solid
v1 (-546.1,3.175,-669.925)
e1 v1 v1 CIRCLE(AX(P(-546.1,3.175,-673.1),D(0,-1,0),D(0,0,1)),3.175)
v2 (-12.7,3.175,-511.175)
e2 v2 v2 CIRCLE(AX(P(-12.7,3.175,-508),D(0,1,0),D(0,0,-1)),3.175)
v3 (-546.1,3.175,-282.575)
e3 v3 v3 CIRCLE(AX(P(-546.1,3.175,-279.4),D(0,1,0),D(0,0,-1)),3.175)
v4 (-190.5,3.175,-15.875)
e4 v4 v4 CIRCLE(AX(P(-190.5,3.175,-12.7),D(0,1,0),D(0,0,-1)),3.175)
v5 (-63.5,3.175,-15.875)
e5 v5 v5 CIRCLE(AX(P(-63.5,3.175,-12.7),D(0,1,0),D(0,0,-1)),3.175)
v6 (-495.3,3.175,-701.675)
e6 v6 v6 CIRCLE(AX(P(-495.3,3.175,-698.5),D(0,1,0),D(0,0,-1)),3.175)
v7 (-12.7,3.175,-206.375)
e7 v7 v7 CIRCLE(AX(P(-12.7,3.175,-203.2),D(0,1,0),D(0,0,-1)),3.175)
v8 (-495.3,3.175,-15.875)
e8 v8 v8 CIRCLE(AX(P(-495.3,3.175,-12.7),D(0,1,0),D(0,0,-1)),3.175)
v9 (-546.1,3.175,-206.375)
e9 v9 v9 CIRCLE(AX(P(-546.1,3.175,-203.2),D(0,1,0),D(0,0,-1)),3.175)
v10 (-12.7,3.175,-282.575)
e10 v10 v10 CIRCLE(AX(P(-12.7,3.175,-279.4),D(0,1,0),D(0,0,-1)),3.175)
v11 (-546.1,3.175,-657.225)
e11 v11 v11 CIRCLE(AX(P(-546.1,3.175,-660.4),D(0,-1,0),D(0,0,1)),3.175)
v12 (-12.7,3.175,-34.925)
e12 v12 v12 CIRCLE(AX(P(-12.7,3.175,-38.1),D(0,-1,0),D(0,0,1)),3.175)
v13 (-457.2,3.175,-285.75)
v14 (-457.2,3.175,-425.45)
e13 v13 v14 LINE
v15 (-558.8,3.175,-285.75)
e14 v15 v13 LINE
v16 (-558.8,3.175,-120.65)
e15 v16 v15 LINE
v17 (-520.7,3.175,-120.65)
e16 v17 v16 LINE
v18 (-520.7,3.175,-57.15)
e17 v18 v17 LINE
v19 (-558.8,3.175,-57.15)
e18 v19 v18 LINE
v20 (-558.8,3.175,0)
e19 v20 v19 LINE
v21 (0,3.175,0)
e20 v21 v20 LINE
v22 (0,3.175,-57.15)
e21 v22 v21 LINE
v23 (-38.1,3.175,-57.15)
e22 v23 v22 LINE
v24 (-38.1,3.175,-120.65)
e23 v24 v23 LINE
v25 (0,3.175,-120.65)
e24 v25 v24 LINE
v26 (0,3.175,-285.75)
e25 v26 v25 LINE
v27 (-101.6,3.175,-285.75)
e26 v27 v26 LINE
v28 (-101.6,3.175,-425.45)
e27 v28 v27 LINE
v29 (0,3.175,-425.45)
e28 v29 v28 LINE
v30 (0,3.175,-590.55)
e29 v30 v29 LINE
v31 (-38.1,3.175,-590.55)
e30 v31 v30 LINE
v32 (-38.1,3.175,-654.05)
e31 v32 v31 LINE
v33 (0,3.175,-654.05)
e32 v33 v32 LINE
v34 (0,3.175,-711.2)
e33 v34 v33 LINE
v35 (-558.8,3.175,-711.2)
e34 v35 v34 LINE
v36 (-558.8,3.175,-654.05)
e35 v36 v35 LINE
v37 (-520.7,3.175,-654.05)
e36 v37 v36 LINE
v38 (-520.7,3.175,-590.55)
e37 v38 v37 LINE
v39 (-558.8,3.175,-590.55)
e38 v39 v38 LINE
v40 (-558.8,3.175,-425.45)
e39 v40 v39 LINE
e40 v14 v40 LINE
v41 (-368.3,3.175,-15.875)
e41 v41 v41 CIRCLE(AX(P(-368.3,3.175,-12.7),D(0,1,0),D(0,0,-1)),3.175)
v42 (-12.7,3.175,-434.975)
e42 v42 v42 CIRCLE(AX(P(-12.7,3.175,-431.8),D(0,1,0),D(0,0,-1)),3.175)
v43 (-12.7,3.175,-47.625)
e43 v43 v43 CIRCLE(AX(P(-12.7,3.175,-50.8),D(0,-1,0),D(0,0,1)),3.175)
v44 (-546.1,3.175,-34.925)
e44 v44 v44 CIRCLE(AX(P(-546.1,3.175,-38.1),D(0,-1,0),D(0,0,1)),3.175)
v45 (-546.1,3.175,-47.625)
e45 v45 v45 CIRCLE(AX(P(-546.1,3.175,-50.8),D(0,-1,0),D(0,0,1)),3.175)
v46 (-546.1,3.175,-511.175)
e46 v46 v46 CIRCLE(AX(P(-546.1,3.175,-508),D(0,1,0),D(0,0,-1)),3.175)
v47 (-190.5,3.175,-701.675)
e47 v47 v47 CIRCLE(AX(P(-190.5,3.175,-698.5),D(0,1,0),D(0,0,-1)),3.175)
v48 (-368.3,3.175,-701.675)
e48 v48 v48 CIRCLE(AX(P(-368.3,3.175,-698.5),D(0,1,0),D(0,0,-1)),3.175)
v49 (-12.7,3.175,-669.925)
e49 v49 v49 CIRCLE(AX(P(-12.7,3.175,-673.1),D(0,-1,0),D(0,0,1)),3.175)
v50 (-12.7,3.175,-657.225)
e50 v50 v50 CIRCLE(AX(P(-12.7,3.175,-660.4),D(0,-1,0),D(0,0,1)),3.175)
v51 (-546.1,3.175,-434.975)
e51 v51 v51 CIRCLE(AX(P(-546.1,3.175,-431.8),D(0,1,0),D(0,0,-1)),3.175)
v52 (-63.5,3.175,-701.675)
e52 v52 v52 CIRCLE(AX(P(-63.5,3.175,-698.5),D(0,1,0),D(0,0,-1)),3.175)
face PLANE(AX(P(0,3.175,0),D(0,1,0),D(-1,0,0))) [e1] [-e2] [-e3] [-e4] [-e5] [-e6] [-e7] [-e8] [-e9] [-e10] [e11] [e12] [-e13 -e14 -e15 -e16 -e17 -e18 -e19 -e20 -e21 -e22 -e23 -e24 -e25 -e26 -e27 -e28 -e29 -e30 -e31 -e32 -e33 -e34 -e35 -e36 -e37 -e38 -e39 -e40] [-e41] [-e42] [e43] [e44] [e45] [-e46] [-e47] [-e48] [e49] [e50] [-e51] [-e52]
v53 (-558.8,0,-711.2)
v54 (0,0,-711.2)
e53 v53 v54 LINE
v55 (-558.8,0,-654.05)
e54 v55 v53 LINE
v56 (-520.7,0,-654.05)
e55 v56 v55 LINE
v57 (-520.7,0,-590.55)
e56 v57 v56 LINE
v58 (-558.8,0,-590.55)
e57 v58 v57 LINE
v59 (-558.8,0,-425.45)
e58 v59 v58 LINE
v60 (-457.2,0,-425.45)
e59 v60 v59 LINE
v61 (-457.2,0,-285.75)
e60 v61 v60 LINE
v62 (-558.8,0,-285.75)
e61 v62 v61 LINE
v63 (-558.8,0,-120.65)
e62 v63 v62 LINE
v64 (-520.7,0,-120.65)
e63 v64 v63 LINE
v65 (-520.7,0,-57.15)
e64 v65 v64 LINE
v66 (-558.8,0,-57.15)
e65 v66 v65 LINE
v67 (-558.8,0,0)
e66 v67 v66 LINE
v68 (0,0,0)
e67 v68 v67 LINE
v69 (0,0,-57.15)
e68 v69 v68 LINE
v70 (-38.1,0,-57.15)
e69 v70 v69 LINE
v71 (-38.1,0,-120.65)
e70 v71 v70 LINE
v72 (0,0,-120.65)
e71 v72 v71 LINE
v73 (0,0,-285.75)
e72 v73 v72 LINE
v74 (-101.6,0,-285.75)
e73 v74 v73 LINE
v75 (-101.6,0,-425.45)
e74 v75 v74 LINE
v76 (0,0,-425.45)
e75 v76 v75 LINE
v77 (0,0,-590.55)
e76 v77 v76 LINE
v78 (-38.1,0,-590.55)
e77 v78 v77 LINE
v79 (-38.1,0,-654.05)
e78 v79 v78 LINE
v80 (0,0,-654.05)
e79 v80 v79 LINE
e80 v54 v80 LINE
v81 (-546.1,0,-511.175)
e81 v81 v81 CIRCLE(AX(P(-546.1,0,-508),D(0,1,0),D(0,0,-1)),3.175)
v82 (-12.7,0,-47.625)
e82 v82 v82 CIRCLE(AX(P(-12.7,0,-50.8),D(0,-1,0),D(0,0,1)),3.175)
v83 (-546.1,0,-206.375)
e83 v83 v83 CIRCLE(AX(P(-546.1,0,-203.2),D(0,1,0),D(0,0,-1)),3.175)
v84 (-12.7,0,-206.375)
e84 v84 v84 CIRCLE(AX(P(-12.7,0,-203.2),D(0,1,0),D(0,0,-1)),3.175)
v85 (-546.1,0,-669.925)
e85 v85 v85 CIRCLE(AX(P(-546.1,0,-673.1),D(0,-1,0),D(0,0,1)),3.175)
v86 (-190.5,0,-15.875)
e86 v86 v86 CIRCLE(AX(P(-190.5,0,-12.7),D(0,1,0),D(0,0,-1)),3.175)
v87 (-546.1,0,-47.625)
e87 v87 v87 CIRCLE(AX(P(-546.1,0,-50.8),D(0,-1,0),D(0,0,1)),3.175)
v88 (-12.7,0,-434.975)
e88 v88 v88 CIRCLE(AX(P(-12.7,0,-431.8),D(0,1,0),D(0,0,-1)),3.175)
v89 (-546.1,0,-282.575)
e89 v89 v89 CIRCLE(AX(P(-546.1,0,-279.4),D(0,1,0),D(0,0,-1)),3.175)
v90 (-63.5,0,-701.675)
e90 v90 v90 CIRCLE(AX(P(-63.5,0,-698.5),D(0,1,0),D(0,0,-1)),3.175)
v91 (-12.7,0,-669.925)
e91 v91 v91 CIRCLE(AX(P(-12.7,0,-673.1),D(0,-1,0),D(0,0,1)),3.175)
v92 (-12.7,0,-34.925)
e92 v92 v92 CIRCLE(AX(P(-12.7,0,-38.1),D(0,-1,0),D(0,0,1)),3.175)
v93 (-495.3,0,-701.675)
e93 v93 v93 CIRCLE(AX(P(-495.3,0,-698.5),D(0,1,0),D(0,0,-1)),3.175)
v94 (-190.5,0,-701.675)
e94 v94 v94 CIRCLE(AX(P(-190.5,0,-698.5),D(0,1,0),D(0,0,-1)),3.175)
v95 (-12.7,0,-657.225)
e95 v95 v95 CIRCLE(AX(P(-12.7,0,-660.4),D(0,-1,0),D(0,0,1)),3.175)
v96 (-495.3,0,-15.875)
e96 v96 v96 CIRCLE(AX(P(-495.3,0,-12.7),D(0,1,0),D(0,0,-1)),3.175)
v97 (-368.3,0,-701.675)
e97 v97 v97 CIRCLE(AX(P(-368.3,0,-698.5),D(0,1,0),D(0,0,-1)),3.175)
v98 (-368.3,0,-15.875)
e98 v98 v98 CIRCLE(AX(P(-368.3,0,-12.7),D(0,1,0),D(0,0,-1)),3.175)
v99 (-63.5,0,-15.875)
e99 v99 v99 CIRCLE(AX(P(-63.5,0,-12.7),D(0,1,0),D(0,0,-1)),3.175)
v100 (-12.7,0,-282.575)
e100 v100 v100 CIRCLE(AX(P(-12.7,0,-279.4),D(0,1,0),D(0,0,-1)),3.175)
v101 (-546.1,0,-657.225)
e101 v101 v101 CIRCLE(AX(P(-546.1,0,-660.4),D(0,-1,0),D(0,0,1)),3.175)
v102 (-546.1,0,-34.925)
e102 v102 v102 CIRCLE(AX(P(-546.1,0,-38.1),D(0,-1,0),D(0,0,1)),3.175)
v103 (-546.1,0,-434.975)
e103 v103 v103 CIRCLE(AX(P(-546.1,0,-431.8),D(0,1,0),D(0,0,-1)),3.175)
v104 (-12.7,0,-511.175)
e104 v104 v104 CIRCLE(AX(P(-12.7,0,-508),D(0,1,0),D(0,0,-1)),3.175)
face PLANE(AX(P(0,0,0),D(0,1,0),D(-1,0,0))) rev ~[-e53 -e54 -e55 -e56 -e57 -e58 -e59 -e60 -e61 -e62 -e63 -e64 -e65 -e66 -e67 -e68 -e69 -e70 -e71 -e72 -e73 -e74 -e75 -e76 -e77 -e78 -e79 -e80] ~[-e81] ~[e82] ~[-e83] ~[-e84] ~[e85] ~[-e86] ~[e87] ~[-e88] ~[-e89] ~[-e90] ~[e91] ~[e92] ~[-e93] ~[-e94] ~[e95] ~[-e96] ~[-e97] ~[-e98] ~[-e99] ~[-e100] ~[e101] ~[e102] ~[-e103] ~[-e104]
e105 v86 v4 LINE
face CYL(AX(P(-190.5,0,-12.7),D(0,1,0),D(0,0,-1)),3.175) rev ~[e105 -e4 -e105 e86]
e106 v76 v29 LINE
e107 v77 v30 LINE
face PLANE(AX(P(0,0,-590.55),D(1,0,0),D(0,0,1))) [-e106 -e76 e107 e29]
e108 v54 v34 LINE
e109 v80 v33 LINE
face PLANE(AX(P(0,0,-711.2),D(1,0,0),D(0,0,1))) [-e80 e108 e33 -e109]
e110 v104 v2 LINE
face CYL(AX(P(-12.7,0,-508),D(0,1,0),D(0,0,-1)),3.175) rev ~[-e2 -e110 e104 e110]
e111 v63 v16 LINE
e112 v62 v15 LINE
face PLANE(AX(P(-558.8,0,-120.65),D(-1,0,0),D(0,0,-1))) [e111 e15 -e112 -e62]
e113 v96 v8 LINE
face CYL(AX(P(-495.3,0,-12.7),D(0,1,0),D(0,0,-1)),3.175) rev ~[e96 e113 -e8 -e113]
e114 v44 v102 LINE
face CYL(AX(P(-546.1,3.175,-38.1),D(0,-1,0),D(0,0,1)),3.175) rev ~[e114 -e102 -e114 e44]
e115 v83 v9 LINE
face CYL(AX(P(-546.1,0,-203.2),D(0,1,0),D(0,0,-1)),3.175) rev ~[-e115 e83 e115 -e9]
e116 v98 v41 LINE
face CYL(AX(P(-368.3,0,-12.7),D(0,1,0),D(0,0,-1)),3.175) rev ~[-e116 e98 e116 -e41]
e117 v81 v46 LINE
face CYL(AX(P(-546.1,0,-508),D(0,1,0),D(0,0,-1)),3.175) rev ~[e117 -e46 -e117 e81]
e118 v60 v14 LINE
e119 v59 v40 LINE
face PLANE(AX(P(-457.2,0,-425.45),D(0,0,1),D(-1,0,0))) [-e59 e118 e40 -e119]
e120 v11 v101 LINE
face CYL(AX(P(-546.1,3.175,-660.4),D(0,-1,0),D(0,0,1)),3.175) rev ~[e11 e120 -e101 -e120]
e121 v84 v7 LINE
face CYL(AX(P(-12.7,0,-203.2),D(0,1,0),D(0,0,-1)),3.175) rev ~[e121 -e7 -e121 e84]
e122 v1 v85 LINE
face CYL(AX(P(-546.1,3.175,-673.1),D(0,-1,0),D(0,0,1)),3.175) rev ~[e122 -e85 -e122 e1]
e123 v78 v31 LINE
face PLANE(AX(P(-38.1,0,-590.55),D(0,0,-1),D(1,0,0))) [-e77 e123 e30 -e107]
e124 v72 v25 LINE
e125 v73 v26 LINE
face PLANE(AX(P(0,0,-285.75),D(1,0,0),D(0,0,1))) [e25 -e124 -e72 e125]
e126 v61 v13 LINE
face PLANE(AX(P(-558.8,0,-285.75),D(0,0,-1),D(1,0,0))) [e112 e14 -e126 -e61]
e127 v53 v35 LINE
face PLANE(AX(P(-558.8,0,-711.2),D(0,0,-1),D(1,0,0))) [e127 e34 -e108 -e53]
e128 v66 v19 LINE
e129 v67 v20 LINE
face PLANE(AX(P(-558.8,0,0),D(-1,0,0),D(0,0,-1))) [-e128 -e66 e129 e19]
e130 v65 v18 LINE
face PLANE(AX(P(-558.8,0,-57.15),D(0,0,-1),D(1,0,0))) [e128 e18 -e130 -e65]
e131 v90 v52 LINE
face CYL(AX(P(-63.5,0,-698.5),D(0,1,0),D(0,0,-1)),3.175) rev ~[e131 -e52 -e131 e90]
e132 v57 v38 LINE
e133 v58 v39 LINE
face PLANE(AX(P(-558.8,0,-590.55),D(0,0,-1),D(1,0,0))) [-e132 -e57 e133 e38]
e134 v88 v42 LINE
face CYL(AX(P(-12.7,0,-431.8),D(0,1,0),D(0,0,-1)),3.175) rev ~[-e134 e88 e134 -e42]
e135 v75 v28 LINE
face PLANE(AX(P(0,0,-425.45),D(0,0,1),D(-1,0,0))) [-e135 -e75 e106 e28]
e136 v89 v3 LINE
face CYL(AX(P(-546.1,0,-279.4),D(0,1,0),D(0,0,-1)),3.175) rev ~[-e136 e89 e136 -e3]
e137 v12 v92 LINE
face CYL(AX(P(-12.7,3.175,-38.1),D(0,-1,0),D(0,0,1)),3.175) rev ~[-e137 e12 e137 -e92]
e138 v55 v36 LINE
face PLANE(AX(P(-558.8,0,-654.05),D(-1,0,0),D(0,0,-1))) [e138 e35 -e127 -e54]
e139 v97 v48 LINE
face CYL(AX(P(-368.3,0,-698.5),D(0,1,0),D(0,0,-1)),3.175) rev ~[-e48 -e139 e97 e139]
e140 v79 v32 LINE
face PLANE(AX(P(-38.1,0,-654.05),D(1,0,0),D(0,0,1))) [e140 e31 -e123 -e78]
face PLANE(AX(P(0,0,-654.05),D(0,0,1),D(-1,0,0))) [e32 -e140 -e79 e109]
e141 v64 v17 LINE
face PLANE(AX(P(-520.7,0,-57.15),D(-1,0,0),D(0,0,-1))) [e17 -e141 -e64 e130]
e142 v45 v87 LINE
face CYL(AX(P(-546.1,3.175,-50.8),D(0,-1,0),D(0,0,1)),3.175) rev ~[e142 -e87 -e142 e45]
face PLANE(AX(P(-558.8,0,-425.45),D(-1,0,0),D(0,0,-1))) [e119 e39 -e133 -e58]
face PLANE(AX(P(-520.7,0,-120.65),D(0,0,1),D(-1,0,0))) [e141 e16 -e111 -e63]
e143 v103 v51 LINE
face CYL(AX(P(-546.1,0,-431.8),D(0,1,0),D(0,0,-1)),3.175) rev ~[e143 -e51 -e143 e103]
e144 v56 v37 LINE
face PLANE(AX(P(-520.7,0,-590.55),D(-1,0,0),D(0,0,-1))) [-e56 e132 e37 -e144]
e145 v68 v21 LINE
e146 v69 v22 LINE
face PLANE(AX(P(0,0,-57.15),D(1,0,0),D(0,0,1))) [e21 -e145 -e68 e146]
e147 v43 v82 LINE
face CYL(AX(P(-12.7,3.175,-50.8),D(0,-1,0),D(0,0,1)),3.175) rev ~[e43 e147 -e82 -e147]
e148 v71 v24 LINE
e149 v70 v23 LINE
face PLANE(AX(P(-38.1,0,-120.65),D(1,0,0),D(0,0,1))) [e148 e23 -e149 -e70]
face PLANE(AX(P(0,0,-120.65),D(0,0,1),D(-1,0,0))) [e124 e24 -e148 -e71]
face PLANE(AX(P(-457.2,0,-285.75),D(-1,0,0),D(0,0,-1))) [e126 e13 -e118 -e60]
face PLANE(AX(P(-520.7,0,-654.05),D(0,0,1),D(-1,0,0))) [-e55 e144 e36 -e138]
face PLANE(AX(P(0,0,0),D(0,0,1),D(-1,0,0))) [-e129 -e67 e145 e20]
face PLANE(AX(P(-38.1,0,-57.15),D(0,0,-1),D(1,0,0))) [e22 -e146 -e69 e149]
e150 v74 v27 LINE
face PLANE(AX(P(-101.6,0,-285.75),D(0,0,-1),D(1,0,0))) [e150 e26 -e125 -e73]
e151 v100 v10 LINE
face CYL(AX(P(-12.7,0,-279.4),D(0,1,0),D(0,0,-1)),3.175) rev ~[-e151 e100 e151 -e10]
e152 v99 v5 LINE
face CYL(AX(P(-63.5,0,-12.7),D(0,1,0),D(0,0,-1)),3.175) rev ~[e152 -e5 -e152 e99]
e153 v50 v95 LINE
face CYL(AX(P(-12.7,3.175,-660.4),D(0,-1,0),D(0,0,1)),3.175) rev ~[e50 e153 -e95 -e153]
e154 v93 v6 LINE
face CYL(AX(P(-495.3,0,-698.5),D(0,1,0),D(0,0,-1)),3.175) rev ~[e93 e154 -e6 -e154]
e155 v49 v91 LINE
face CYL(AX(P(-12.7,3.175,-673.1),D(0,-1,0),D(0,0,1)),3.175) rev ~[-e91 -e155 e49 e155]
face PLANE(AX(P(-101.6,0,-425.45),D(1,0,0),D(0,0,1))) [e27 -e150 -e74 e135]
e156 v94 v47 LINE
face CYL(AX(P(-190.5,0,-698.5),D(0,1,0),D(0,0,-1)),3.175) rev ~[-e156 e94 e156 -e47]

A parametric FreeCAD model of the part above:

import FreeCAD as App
import Part
import Sketcher

V = App.Vector
Q = App.Units.Quantity

doc = App.newDocument("Part")
params = doc.addObject("Spreadsheet::Sheet", "Params")
for row, (alias, value) in enumerate([
    ("sketch1_width", "22 in"),
    ("sketch1_width2", "4 in"),
    ("sketch1_width3", "1.5 in"),
    ("sketch1_height", "2.5 in"),
    ("sketch1_height2", "2.25 in"),
    ("pad1_length", "0.125 in"),
    ("sketch2_diameter", "0.25 in"),
    ("hole_diameter", "0.25 in"),
    ("sketch3_diameter", "0.25 in"),
    ("hole2_diameter", "0.25 in"),
    ("sketch4_diameter", "0.25 in"),
    ("hole3_diameter", "0.25 in"),
], start=1):
    params.set(f"A{row}", alias)
    params.set(f"B{row}", "=" + value)
    params.setAlias(f"B{row}", alias)

body = doc.addObject("PartDesign::Body", "Body")

# Sketch on XZ plane
sketch1 = body.newObject("Sketcher::SketchObject", "Sketch")
sketch1.AttachmentSupport = (doc.getObject("XZ_Plane"), [""])
sketch1.MapMode = "FlatFace"
sketch1.addGeometry(Part.LineSegment(V(-559, 0, 0), V(0, 0, 0)), False)
sketch1.addGeometry(Part.LineSegment(V(0, 0, 0), V(0, -57, 0)), False)
sketch1.addGeometry(Part.LineSegment(V(0, -57, 0), V(-38, -57, 0)), False)
sketch1.addGeometry(Part.LineSegment(V(-38, -57, 0), V(-38, -121, 0)), False)
sketch1.addGeometry(Part.LineSegment(V(-38, -121, 0), V(0, -121, 0)), False)
sketch1.addGeometry(Part.LineSegment(V(0, -121, 0), V(0, -286, 0)), False)
sketch1.addGeometry(Part.LineSegment(V(0, -286, 0), V(-102, -286, 0)), False)
sketch1.addGeometry(Part.LineSegment(V(-102, -286, 0), V(-102, -425, 0)), False)
sketch1.addGeometry(Part.LineSegment(V(-102, -425, 0), V(0, -425, 0)), False)
sketch1.addGeometry(Part.LineSegment(V(0, -425, 0), V(0, -591, 0)), False)
sketch1.addGeometry(Part.LineSegment(V(0, -591, 0), V(-38, -591, 0)), False)
sketch1.addGeometry(Part.LineSegment(V(-38, -591, 0), V(-38, -654, 0)), False)
sketch1.addGeometry(Part.LineSegment(V(-38, -654, 0), V(0, -654, 0)), False)
sketch1.addGeometry(Part.LineSegment(V(0, -654, 0), V(0, -711, 0)), False)
sketch1.addGeometry(Part.LineSegment(V(0, -711, 0), V(-559, -711, 0)), False)
sketch1.addGeometry(Part.LineSegment(V(-559, -711, 0), V(-559, -654, 0)), False)
sketch1.addGeometry(Part.LineSegment(V(-559, -654, 0), V(-521, -654, 0)), False)
sketch1.addGeometry(Part.LineSegment(V(-521, -654, 0), V(-521, -591, 0)), False)
sketch1.addGeometry(Part.LineSegment(V(-521, -591, 0), V(-559, -591, 0)), False)
sketch1.addGeometry(Part.LineSegment(V(-559, -591, 0), V(-559, -425, 0)), False)
sketch1.addGeometry(Part.LineSegment(V(-559, -425, 0), V(-457, -425, 0)), False)
sketch1.addGeometry(Part.LineSegment(V(-457, -425, 0), V(-457, -286, 0)), False)
sketch1.addGeometry(Part.LineSegment(V(-457, -286, 0), V(-559, -286, 0)), False)
sketch1.addGeometry(Part.LineSegment(V(-559, -286, 0), V(-559, -121, 0)), False)
sketch1.addGeometry(Part.LineSegment(V(-559, -121, 0), V(-521, -121, 0)), False)
sketch1.addGeometry(Part.LineSegment(V(-521, -121, 0), V(-521, -57, 0)), False)
sketch1.addGeometry(Part.LineSegment(V(-521, -57, 0), V(-559, -57, 0)), False)
sketch1.addGeometry(Part.LineSegment(V(-559, -57, 0), V(-559, 0, 0)), False)
sketch1.addConstraint(Sketcher.Constraint("Coincident", 0, 2, 1, 1))
sketch1.addConstraint(Sketcher.Constraint("Coincident", 1, 2, 2, 1))
sketch1.addConstraint(Sketcher.Constraint("Coincident", 2, 2, 3, 1))
sketch1.addConstraint(Sketcher.Constraint("Coincident", 3, 2, 4, 1))
sketch1.addConstraint(Sketcher.Constraint("Coincident", 4, 2, 5, 1))
sketch1.addConstraint(Sketcher.Constraint("Coincident", 5, 2, 6, 1))
sketch1.addConstraint(Sketcher.Constraint("Coincident", 6, 2, 7, 1))
sketch1.addConstraint(Sketcher.Constraint("Coincident", 7, 2, 8, 1))
sketch1.addConstraint(Sketcher.Constraint("Coincident", 8, 2, 9, 1))
sketch1.addConstraint(Sketcher.Constraint("Coincident", 9, 2, 10, 1))
sketch1.addConstraint(Sketcher.Constraint("Coincident", 10, 2, 11, 1))
sketch1.addConstraint(Sketcher.Constraint("Coincident", 11, 2, 12, 1))
sketch1.addConstraint(Sketcher.Constraint("Coincident", 12, 2, 13, 1))
sketch1.addConstraint(Sketcher.Constraint("Coincident", 13, 2, 14, 1))
sketch1.addConstraint(Sketcher.Constraint("Coincident", 14, 2, 15, 1))
sketch1.addConstraint(Sketcher.Constraint("Coincident", 15, 2, 16, 1))
sketch1.addConstraint(Sketcher.Constraint("Coincident", 16, 2, 17, 1))
sketch1.addConstraint(Sketcher.Constraint("Coincident", 17, 2, 18, 1))
sketch1.addConstraint(Sketcher.Constraint("Coincident", 18, 2, 19, 1))
sketch1.addConstraint(Sketcher.Constraint("Coincident", 19, 2, 20, 1))
sketch1.addConstraint(Sketcher.Constraint("Coincident", 20, 2, 21, 1))
sketch1.addConstraint(Sketcher.Constraint("Coincident", 21, 2, 22, 1))
sketch1.addConstraint(Sketcher.Constraint("Coincident", 22, 2, 23, 1))
sketch1.addConstraint(Sketcher.Constraint("Coincident", 23, 2, 24, 1))
sketch1.addConstraint(Sketcher.Constraint("Coincident", 24, 2, 25, 1))
sketch1.addConstraint(Sketcher.Constraint("Coincident", 25, 2, 26, 1))
sketch1.addConstraint(Sketcher.Constraint("Coincident", 26, 2, 27, 1))
sketch1.addConstraint(Sketcher.Constraint("Coincident", 27, 2, 0, 1))
sketch1.addConstraint(Sketcher.Constraint("Horizontal", 0))
sketch1.addConstraint(Sketcher.Constraint("Vertical", 1))
sketch1.addConstraint(Sketcher.Constraint("Horizontal", 2))
sketch1.addConstraint(Sketcher.Constraint("Vertical", 3))
sketch1.addConstraint(Sketcher.Constraint("Horizontal", 4))
sketch1.addConstraint(Sketcher.Constraint("Vertical", 5))
sketch1.addConstraint(Sketcher.Constraint("Horizontal", 6))
sketch1.addConstraint(Sketcher.Constraint("Vertical", 7))
sketch1.addConstraint(Sketcher.Constraint("Horizontal", 8))
sketch1.addConstraint(Sketcher.Constraint("Vertical", 9))
sketch1.addConstraint(Sketcher.Constraint("Horizontal", 10))
sketch1.addConstraint(Sketcher.Constraint("Vertical", 11))
sketch1.addConstraint(Sketcher.Constraint("Horizontal", 12))
sketch1.addConstraint(Sketcher.Constraint("Vertical", 13))
sketch1.addConstraint(Sketcher.Constraint("Horizontal", 14))
sketch1.addConstraint(Sketcher.Constraint("Vertical", 15))
sketch1.addConstraint(Sketcher.Constraint("Horizontal", 16))
sketch1.addConstraint(Sketcher.Constraint("Vertical", 17))
sketch1.addConstraint(Sketcher.Constraint("Horizontal", 18))
sketch1.addConstraint(Sketcher.Constraint("Vertical", 19))
sketch1.addConstraint(Sketcher.Constraint("Horizontal", 20))
sketch1.addConstraint(Sketcher.Constraint("Vertical", 21))
sketch1.addConstraint(Sketcher.Constraint("Horizontal", 22))
sketch1.addConstraint(Sketcher.Constraint("Vertical", 23))
sketch1.addConstraint(Sketcher.Constraint("Horizontal", 24))
sketch1.addConstraint(Sketcher.Constraint("Vertical", 25))
sketch1.addConstraint(Sketcher.Constraint("Horizontal", 26))
sketch1.addConstraint(Sketcher.Constraint("Vertical", 27))
sketch1.addConstraint(Sketcher.Constraint("Coincident", 0, 2, -1, 1))
sketch1.addConstraint(Sketcher.Constraint("PointOnObject", 4, 2, -2))
sketch1.addConstraint(Sketcher.Constraint("PointOnObject", 8, 2, -2))
sketch1.addConstraint(Sketcher.Constraint("PointOnObject", 12, 2, -2))
sketch1.addConstraint(Sketcher.Constraint("Horizontal", 12, 2, 15, 2))
sketch1.addConstraint(Sketcher.Constraint("Horizontal", 10, 2, 17, 2))
sketch1.addConstraint(Sketcher.Constraint("Horizontal", 8, 2, 19, 2))
sketch1.addConstraint(Sketcher.Constraint("Horizontal", 6, 2, 21, 2))
sketch1.addConstraint(Sketcher.Constraint("Horizontal", 4, 2, 23, 2))
sketch1.addConstraint(Sketcher.Constraint("Horizontal", 2, 2, 25, 2))
sketch1.addConstraint(Sketcher.Constraint("Vertical", 3, 2, 10, 2))
sketch1.addConstraint(Sketcher.Constraint("Vertical", 15, 2, 18, 2))
sketch1.addConstraint(Sketcher.Constraint("Vertical", 19, 2, 22, 2))
sketch1.addConstraint(Sketcher.Constraint("Vertical", 17, 2, 24, 2))
sketch1.addConstraint(Sketcher.Constraint("Vertical", 23, 2, 26, 2))
sketch1.addConstraint(Sketcher.Constraint("Equal", 12, 16))
sketch1.addConstraint(Sketcher.Constraint("Equal", 8, 20))
sketch1.addConstraint(Sketcher.Constraint("Equal", 5, 9))
sketch1.addConstraint(Sketcher.Constraint("Equal", 3, 11))
sketch1.addConstraint(Sketcher.Constraint("Equal", 1, 13))
sketch1.addConstraint(Sketcher.Constraint("DistanceX", 0, 1, 0, 2, Q("22 in")))
sketch1.addConstraint(Sketcher.Constraint("DistanceX", 6, 2, 6, 1, Q("4 in")))
sketch1.addConstraint(Sketcher.Constraint("DistanceX", 2, 2, 2, 1, Q("1.5 in")))
sketch1.addConstraint(Sketcher.Constraint("DistanceY", 3, 2, 3, 1, Q("2.5 in")))
sketch1.addConstraint(Sketcher.Constraint("DistanceY", 13, 2, -1, 1, Q("28 in")))
sketch1.addConstraint(Sketcher.Constraint("DistanceY", 1, 2, 1, 1, Q("2.25 in")))
sketch1.addConstraint(Sketcher.Constraint("DistanceY", 5, 2, 5, 1, Q("6.5 in")))
sketch1.setExpression("Constraints[76]", "Params.sketch1_width")
sketch1.setExpression("Constraints[77]", "Params.sketch1_width2")
sketch1.setExpression("Constraints[78]", "Params.sketch1_width3")
sketch1.setExpression("Constraints[79]", "Params.sketch1_height")
sketch1.setExpression("Constraints[81]", "Params.sketch1_height2")
pad1 = body.newObject("PartDesign::Pad", "Pad")
pad1.Profile = sketch1
pad1.setExpression("Length", "Params.pad1_length")
pad1.Reversed = True

# Sketch on XZ plane
sketch2 = body.newObject("Sketcher::SketchObject", "Sketch001")
sketch2.AttachmentSupport = (doc.getObject("XZ_Plane"), [""])
sketch2.MapMode = "FlatFace"
sketch2.AttachmentOffset = App.Placement(V(0, 0, -0.125 * 25.4), App.Rotation())
sketch2.addGeometry(Part.Circle(V(-546.1, -38.1, 0), V(0, 0, 1), 3.2), False)
sketch2.addGeometry(Part.Circle(V(-546.1, -50.8, 0), V(0, 0, 1), 3.2), False)
sketch2.addGeometry(Part.Circle(V(-12.7, -38.1, 0), V(0, 0, 1), 3.2), False)
sketch2.addGeometry(Part.Circle(V(-12.7, -50.8, 0), V(0, 0, 1), 3.2), False)
sketch2.addGeometry(Part.Circle(V(-12.7, -673.1, 0), V(0, 0, 1), 3.2), False)
sketch2.addGeometry(Part.Circle(V(-12.7, -660.4, 0), V(0, 0, 1), 3.2), False)
sketch2.addGeometry(Part.Circle(V(-546.1, -673.1, 0), V(0, 0, 1), 3.2), False)
sketch2.addGeometry(Part.Circle(V(-546.1, -660.4, 0), V(0, 0, 1), 3.2), False)
sketch2.addConstraint(Sketcher.Constraint("Equal", 0, 1))
sketch2.addConstraint(Sketcher.Constraint("Equal", 1, 2))
sketch2.addConstraint(Sketcher.Constraint("Equal", 2, 3))
sketch2.addConstraint(Sketcher.Constraint("Equal", 3, 4))
sketch2.addConstraint(Sketcher.Constraint("Equal", 4, 5))
sketch2.addConstraint(Sketcher.Constraint("Equal", 5, 6))
sketch2.addConstraint(Sketcher.Constraint("Equal", 6, 7))
sketch2.addConstraint(Sketcher.Constraint("Horizontal", 0, 3, 2, 3))
sketch2.addConstraint(Sketcher.Constraint("Horizontal", 1, 3, 3, 3))
sketch2.addConstraint(Sketcher.Constraint("Horizontal", 4, 3, 6, 3))
sketch2.addConstraint(Sketcher.Constraint("Horizontal", 5, 3, 7, 3))
sketch2.addConstraint(Sketcher.Constraint("Vertical", 0, 3, 1, 3))
sketch2.addConstraint(Sketcher.Constraint("Vertical", 2, 3, 3, 3))
sketch2.addConstraint(Sketcher.Constraint("Vertical", 3, 3, 4, 3))
sketch2.addConstraint(Sketcher.Constraint("Vertical", 4, 3, 5, 3))
sketch2.addConstraint(Sketcher.Constraint("Vertical", 1, 3, 6, 3))
sketch2.addConstraint(Sketcher.Constraint("Vertical", 6, 3, 7, 3))
sketch2.addConstraint(Sketcher.Constraint("Diameter", 0, Q("0.25 in")))
sketch2.addConstraint(Sketcher.Constraint("DistanceY", 1, 3, -1, 1, Q("2 in")))
sketch2.addConstraint(Sketcher.Constraint("DistanceY", 5, 3, -1, 1, Q("26 in")))
sketch2.addConstraint(Sketcher.Constraint("DistanceX", 0, 3, 2, 3, Q("21 in")))
sketch2.addConstraint(Sketcher.Constraint("DistanceY", 4, 3, 2, 3, Q("25 in")))
sketch2.addConstraint(Sketcher.Constraint("DistanceX", 0, 3, -1, 1, Q("21.5 in")))
sketch2.addConstraint(Sketcher.Constraint("DistanceY", 0, 3, -1, 1, Q("1.5 in")))
sketch2.setExpression("Constraints[17]", "Params.sketch2_diameter")
doc.recompute()
hole = body.newObject("PartDesign::Hole", "Hole")
hole.Profile = sketch2
hole.ThreadType = "None"
hole.setExpression("Diameter", "Params.hole_diameter")
hole.DepthType = "ThroughAll"
hole.Reversed = True

# Sketch on XZ plane
sketch3 = body.newObject("Sketcher::SketchObject", "Sketch002")
sketch3.AttachmentSupport = (doc.getObject("XZ_Plane"), [""])
sketch3.MapMode = "FlatFace"
sketch3.addGeometry(Part.Circle(V(-12.7, -279.4, 0), V(0, 0, 1), 3.2), False)
sketch3.addGeometry(Part.Circle(V(-12.7, -203.2, 0), V(0, 0, 1), 3.2), False)
sketch3.addGeometry(Part.Circle(V(-12.7, -431.8, 0), V(0, 0, 1), 3.2), False)
sketch3.addGeometry(Part.Circle(V(-12.7, -508, 0), V(0, 0, 1), 3.2), False)
sketch3.addGeometry(Part.Circle(V(-546.1, -431.8, 0), V(0, 0, 1), 3.2), False)
sketch3.addGeometry(Part.Circle(V(-546.1, -508, 0), V(0, 0, 1), 3.2), False)
sketch3.addGeometry(Part.Circle(V(-546.1, -279.4, 0), V(0, 0, 1), 3.2), False)
sketch3.addGeometry(Part.Circle(V(-546.1, -203.2, 0), V(0, 0, 1), 3.2), False)
sketch3.addConstraint(Sketcher.Constraint("Equal", 0, 1))
sketch3.addConstraint(Sketcher.Constraint("Equal", 1, 2))
sketch3.addConstraint(Sketcher.Constraint("Equal", 2, 3))
sketch3.addConstraint(Sketcher.Constraint("Equal", 3, 4))
sketch3.addConstraint(Sketcher.Constraint("Equal", 4, 5))
sketch3.addConstraint(Sketcher.Constraint("Equal", 5, 6))
sketch3.addConstraint(Sketcher.Constraint("Equal", 6, 7))
sketch3.addConstraint(Sketcher.Constraint("Horizontal", 2, 3, 4, 3))
sketch3.addConstraint(Sketcher.Constraint("Horizontal", 3, 3, 5, 3))
sketch3.addConstraint(Sketcher.Constraint("Horizontal", 0, 3, 6, 3))
sketch3.addConstraint(Sketcher.Constraint("Horizontal", 1, 3, 7, 3))
sketch3.addConstraint(Sketcher.Constraint("Vertical", 0, 3, 1, 3))
sketch3.addConstraint(Sketcher.Constraint("Vertical", 1, 3, 2, 3))
sketch3.addConstraint(Sketcher.Constraint("Vertical", 2, 3, 3, 3))
sketch3.addConstraint(Sketcher.Constraint("Vertical", 4, 3, 5, 3))
sketch3.addConstraint(Sketcher.Constraint("Vertical", 5, 3, 6, 3))
sketch3.addConstraint(Sketcher.Constraint("Vertical", 6, 3, 7, 3))
sketch3.addConstraint(Sketcher.Constraint("Diameter", 0, Q("0.25 in")))
sketch3.addConstraint(Sketcher.Constraint("DistanceY", 0, 3, -1, 1, Q("11 in")))
sketch3.addConstraint(Sketcher.Constraint("DistanceY", 1, 3, -1, 1, Q("8 in")))
sketch3.addConstraint(Sketcher.Constraint("DistanceY", 2, 3, -1, 1, Q("17 in")))
sketch3.addConstraint(Sketcher.Constraint("DistanceY", 3, 3, -1, 1, Q("20 in")))
sketch3.addConstraint(Sketcher.Constraint("DistanceX", 4, 3, 2, 3, Q("21 in")))
sketch3.addConstraint(Sketcher.Constraint("DistanceX", 0, 3, -1, 1, Q("0.5 in")))
sketch3.setExpression("Constraints[17]", "Params.sketch3_diameter")
doc.recompute()
hole2 = body.newObject("PartDesign::Hole", "Hole001")
hole2.Profile = sketch3
hole2.ThreadType = "None"
hole2.setExpression("Diameter", "Params.hole2_diameter")
hole2.DepthType = "ThroughAll"

# Sketch on XZ plane
sketch4 = body.newObject("Sketcher::SketchObject", "Sketch003")
sketch4.AttachmentSupport = (doc.getObject("XZ_Plane"), [""])
sketch4.MapMode = "FlatFace"
sketch4.addGeometry(Part.Circle(V(-495.3, -698.5, 0), V(0, 0, 1), 3.2), False)
sketch4.addGeometry(Part.Circle(V(-368.3, -698.5, 0), V(0, 0, 1), 3.2), False)
sketch4.addGeometry(Part.Circle(V(-190.5, -698.5, 0), V(0, 0, 1), 3.2), False)
sketch4.addGeometry(Part.Circle(V(-63.5, -698.5, 0), V(0, 0, 1), 3.2), False)
sketch4.addGeometry(Part.Circle(V(-495.3, -12.7, 0), V(0, 0, 1), 3.2), False)
sketch4.addGeometry(Part.Circle(V(-368.3, -12.7, 0), V(0, 0, 1), 3.2), False)
sketch4.addGeometry(Part.Circle(V(-190.5, -12.7, 0), V(0, 0, 1), 3.2), False)
sketch4.addGeometry(Part.Circle(V(-63.5, -12.7, 0), V(0, 0, 1), 3.2), False)
sketch4.addConstraint(Sketcher.Constraint("Equal", 0, 1))
sketch4.addConstraint(Sketcher.Constraint("Equal", 1, 2))
sketch4.addConstraint(Sketcher.Constraint("Equal", 2, 3))
sketch4.addConstraint(Sketcher.Constraint("Equal", 3, 4))
sketch4.addConstraint(Sketcher.Constraint("Equal", 4, 5))
sketch4.addConstraint(Sketcher.Constraint("Equal", 5, 6))
sketch4.addConstraint(Sketcher.Constraint("Equal", 6, 7))
sketch4.addConstraint(Sketcher.Constraint("Horizontal", 0, 3, 1, 3))
sketch4.addConstraint(Sketcher.Constraint("Horizontal", 1, 3, 2, 3))
sketch4.addConstraint(Sketcher.Constraint("Horizontal", 2, 3, 3, 3))
sketch4.addConstraint(Sketcher.Constraint("Horizontal", 4, 3, 5, 3))
sketch4.addConstraint(Sketcher.Constraint("Horizontal", 5, 3, 6, 3))
sketch4.addConstraint(Sketcher.Constraint("Horizontal", 6, 3, 7, 3))
sketch4.addConstraint(Sketcher.Constraint("Vertical", 0, 3, 4, 3))
sketch4.addConstraint(Sketcher.Constraint("Vertical", 1, 3, 5, 3))
sketch4.addConstraint(Sketcher.Constraint("Vertical", 2, 3, 6, 3))
sketch4.addConstraint(Sketcher.Constraint("Vertical", 3, 3, 7, 3))
sketch4.addConstraint(Sketcher.Constraint("Diameter", 0, Q("0.25 in")))
sketch4.addConstraint(Sketcher.Constraint("DistanceX", 0, 3, 1, 3, Q("5 in")))
sketch4.addConstraint(Sketcher.Constraint("DistanceX", 1, 3, 2, 3, Q("7 in")))
sketch4.addConstraint(Sketcher.Constraint("DistanceX", 2, 3, 3, 3, Q("5 in")))
sketch4.addConstraint(Sketcher.Constraint("DistanceY", 0, 3, 4, 3, Q("27 in")))
sketch4.addConstraint(Sketcher.Constraint("DistanceX", 0, 3, -1, 1, Q("19.5 in")))
sketch4.addConstraint(Sketcher.Constraint("DistanceY", 0, 3, -1, 1, Q("27.5 in")))
sketch4.setExpression("Constraints[17]", "Params.sketch4_diameter")
doc.recompute()
hole3 = body.newObject("PartDesign::Hole", "Hole002")
hole3.Profile = sketch4
hole3.ThreadType = "None"
hole3.setExpression("Diameter", "Params.hole3_diameter")
hole3.DepthType = "ThroughAll"

doc.recompute()
